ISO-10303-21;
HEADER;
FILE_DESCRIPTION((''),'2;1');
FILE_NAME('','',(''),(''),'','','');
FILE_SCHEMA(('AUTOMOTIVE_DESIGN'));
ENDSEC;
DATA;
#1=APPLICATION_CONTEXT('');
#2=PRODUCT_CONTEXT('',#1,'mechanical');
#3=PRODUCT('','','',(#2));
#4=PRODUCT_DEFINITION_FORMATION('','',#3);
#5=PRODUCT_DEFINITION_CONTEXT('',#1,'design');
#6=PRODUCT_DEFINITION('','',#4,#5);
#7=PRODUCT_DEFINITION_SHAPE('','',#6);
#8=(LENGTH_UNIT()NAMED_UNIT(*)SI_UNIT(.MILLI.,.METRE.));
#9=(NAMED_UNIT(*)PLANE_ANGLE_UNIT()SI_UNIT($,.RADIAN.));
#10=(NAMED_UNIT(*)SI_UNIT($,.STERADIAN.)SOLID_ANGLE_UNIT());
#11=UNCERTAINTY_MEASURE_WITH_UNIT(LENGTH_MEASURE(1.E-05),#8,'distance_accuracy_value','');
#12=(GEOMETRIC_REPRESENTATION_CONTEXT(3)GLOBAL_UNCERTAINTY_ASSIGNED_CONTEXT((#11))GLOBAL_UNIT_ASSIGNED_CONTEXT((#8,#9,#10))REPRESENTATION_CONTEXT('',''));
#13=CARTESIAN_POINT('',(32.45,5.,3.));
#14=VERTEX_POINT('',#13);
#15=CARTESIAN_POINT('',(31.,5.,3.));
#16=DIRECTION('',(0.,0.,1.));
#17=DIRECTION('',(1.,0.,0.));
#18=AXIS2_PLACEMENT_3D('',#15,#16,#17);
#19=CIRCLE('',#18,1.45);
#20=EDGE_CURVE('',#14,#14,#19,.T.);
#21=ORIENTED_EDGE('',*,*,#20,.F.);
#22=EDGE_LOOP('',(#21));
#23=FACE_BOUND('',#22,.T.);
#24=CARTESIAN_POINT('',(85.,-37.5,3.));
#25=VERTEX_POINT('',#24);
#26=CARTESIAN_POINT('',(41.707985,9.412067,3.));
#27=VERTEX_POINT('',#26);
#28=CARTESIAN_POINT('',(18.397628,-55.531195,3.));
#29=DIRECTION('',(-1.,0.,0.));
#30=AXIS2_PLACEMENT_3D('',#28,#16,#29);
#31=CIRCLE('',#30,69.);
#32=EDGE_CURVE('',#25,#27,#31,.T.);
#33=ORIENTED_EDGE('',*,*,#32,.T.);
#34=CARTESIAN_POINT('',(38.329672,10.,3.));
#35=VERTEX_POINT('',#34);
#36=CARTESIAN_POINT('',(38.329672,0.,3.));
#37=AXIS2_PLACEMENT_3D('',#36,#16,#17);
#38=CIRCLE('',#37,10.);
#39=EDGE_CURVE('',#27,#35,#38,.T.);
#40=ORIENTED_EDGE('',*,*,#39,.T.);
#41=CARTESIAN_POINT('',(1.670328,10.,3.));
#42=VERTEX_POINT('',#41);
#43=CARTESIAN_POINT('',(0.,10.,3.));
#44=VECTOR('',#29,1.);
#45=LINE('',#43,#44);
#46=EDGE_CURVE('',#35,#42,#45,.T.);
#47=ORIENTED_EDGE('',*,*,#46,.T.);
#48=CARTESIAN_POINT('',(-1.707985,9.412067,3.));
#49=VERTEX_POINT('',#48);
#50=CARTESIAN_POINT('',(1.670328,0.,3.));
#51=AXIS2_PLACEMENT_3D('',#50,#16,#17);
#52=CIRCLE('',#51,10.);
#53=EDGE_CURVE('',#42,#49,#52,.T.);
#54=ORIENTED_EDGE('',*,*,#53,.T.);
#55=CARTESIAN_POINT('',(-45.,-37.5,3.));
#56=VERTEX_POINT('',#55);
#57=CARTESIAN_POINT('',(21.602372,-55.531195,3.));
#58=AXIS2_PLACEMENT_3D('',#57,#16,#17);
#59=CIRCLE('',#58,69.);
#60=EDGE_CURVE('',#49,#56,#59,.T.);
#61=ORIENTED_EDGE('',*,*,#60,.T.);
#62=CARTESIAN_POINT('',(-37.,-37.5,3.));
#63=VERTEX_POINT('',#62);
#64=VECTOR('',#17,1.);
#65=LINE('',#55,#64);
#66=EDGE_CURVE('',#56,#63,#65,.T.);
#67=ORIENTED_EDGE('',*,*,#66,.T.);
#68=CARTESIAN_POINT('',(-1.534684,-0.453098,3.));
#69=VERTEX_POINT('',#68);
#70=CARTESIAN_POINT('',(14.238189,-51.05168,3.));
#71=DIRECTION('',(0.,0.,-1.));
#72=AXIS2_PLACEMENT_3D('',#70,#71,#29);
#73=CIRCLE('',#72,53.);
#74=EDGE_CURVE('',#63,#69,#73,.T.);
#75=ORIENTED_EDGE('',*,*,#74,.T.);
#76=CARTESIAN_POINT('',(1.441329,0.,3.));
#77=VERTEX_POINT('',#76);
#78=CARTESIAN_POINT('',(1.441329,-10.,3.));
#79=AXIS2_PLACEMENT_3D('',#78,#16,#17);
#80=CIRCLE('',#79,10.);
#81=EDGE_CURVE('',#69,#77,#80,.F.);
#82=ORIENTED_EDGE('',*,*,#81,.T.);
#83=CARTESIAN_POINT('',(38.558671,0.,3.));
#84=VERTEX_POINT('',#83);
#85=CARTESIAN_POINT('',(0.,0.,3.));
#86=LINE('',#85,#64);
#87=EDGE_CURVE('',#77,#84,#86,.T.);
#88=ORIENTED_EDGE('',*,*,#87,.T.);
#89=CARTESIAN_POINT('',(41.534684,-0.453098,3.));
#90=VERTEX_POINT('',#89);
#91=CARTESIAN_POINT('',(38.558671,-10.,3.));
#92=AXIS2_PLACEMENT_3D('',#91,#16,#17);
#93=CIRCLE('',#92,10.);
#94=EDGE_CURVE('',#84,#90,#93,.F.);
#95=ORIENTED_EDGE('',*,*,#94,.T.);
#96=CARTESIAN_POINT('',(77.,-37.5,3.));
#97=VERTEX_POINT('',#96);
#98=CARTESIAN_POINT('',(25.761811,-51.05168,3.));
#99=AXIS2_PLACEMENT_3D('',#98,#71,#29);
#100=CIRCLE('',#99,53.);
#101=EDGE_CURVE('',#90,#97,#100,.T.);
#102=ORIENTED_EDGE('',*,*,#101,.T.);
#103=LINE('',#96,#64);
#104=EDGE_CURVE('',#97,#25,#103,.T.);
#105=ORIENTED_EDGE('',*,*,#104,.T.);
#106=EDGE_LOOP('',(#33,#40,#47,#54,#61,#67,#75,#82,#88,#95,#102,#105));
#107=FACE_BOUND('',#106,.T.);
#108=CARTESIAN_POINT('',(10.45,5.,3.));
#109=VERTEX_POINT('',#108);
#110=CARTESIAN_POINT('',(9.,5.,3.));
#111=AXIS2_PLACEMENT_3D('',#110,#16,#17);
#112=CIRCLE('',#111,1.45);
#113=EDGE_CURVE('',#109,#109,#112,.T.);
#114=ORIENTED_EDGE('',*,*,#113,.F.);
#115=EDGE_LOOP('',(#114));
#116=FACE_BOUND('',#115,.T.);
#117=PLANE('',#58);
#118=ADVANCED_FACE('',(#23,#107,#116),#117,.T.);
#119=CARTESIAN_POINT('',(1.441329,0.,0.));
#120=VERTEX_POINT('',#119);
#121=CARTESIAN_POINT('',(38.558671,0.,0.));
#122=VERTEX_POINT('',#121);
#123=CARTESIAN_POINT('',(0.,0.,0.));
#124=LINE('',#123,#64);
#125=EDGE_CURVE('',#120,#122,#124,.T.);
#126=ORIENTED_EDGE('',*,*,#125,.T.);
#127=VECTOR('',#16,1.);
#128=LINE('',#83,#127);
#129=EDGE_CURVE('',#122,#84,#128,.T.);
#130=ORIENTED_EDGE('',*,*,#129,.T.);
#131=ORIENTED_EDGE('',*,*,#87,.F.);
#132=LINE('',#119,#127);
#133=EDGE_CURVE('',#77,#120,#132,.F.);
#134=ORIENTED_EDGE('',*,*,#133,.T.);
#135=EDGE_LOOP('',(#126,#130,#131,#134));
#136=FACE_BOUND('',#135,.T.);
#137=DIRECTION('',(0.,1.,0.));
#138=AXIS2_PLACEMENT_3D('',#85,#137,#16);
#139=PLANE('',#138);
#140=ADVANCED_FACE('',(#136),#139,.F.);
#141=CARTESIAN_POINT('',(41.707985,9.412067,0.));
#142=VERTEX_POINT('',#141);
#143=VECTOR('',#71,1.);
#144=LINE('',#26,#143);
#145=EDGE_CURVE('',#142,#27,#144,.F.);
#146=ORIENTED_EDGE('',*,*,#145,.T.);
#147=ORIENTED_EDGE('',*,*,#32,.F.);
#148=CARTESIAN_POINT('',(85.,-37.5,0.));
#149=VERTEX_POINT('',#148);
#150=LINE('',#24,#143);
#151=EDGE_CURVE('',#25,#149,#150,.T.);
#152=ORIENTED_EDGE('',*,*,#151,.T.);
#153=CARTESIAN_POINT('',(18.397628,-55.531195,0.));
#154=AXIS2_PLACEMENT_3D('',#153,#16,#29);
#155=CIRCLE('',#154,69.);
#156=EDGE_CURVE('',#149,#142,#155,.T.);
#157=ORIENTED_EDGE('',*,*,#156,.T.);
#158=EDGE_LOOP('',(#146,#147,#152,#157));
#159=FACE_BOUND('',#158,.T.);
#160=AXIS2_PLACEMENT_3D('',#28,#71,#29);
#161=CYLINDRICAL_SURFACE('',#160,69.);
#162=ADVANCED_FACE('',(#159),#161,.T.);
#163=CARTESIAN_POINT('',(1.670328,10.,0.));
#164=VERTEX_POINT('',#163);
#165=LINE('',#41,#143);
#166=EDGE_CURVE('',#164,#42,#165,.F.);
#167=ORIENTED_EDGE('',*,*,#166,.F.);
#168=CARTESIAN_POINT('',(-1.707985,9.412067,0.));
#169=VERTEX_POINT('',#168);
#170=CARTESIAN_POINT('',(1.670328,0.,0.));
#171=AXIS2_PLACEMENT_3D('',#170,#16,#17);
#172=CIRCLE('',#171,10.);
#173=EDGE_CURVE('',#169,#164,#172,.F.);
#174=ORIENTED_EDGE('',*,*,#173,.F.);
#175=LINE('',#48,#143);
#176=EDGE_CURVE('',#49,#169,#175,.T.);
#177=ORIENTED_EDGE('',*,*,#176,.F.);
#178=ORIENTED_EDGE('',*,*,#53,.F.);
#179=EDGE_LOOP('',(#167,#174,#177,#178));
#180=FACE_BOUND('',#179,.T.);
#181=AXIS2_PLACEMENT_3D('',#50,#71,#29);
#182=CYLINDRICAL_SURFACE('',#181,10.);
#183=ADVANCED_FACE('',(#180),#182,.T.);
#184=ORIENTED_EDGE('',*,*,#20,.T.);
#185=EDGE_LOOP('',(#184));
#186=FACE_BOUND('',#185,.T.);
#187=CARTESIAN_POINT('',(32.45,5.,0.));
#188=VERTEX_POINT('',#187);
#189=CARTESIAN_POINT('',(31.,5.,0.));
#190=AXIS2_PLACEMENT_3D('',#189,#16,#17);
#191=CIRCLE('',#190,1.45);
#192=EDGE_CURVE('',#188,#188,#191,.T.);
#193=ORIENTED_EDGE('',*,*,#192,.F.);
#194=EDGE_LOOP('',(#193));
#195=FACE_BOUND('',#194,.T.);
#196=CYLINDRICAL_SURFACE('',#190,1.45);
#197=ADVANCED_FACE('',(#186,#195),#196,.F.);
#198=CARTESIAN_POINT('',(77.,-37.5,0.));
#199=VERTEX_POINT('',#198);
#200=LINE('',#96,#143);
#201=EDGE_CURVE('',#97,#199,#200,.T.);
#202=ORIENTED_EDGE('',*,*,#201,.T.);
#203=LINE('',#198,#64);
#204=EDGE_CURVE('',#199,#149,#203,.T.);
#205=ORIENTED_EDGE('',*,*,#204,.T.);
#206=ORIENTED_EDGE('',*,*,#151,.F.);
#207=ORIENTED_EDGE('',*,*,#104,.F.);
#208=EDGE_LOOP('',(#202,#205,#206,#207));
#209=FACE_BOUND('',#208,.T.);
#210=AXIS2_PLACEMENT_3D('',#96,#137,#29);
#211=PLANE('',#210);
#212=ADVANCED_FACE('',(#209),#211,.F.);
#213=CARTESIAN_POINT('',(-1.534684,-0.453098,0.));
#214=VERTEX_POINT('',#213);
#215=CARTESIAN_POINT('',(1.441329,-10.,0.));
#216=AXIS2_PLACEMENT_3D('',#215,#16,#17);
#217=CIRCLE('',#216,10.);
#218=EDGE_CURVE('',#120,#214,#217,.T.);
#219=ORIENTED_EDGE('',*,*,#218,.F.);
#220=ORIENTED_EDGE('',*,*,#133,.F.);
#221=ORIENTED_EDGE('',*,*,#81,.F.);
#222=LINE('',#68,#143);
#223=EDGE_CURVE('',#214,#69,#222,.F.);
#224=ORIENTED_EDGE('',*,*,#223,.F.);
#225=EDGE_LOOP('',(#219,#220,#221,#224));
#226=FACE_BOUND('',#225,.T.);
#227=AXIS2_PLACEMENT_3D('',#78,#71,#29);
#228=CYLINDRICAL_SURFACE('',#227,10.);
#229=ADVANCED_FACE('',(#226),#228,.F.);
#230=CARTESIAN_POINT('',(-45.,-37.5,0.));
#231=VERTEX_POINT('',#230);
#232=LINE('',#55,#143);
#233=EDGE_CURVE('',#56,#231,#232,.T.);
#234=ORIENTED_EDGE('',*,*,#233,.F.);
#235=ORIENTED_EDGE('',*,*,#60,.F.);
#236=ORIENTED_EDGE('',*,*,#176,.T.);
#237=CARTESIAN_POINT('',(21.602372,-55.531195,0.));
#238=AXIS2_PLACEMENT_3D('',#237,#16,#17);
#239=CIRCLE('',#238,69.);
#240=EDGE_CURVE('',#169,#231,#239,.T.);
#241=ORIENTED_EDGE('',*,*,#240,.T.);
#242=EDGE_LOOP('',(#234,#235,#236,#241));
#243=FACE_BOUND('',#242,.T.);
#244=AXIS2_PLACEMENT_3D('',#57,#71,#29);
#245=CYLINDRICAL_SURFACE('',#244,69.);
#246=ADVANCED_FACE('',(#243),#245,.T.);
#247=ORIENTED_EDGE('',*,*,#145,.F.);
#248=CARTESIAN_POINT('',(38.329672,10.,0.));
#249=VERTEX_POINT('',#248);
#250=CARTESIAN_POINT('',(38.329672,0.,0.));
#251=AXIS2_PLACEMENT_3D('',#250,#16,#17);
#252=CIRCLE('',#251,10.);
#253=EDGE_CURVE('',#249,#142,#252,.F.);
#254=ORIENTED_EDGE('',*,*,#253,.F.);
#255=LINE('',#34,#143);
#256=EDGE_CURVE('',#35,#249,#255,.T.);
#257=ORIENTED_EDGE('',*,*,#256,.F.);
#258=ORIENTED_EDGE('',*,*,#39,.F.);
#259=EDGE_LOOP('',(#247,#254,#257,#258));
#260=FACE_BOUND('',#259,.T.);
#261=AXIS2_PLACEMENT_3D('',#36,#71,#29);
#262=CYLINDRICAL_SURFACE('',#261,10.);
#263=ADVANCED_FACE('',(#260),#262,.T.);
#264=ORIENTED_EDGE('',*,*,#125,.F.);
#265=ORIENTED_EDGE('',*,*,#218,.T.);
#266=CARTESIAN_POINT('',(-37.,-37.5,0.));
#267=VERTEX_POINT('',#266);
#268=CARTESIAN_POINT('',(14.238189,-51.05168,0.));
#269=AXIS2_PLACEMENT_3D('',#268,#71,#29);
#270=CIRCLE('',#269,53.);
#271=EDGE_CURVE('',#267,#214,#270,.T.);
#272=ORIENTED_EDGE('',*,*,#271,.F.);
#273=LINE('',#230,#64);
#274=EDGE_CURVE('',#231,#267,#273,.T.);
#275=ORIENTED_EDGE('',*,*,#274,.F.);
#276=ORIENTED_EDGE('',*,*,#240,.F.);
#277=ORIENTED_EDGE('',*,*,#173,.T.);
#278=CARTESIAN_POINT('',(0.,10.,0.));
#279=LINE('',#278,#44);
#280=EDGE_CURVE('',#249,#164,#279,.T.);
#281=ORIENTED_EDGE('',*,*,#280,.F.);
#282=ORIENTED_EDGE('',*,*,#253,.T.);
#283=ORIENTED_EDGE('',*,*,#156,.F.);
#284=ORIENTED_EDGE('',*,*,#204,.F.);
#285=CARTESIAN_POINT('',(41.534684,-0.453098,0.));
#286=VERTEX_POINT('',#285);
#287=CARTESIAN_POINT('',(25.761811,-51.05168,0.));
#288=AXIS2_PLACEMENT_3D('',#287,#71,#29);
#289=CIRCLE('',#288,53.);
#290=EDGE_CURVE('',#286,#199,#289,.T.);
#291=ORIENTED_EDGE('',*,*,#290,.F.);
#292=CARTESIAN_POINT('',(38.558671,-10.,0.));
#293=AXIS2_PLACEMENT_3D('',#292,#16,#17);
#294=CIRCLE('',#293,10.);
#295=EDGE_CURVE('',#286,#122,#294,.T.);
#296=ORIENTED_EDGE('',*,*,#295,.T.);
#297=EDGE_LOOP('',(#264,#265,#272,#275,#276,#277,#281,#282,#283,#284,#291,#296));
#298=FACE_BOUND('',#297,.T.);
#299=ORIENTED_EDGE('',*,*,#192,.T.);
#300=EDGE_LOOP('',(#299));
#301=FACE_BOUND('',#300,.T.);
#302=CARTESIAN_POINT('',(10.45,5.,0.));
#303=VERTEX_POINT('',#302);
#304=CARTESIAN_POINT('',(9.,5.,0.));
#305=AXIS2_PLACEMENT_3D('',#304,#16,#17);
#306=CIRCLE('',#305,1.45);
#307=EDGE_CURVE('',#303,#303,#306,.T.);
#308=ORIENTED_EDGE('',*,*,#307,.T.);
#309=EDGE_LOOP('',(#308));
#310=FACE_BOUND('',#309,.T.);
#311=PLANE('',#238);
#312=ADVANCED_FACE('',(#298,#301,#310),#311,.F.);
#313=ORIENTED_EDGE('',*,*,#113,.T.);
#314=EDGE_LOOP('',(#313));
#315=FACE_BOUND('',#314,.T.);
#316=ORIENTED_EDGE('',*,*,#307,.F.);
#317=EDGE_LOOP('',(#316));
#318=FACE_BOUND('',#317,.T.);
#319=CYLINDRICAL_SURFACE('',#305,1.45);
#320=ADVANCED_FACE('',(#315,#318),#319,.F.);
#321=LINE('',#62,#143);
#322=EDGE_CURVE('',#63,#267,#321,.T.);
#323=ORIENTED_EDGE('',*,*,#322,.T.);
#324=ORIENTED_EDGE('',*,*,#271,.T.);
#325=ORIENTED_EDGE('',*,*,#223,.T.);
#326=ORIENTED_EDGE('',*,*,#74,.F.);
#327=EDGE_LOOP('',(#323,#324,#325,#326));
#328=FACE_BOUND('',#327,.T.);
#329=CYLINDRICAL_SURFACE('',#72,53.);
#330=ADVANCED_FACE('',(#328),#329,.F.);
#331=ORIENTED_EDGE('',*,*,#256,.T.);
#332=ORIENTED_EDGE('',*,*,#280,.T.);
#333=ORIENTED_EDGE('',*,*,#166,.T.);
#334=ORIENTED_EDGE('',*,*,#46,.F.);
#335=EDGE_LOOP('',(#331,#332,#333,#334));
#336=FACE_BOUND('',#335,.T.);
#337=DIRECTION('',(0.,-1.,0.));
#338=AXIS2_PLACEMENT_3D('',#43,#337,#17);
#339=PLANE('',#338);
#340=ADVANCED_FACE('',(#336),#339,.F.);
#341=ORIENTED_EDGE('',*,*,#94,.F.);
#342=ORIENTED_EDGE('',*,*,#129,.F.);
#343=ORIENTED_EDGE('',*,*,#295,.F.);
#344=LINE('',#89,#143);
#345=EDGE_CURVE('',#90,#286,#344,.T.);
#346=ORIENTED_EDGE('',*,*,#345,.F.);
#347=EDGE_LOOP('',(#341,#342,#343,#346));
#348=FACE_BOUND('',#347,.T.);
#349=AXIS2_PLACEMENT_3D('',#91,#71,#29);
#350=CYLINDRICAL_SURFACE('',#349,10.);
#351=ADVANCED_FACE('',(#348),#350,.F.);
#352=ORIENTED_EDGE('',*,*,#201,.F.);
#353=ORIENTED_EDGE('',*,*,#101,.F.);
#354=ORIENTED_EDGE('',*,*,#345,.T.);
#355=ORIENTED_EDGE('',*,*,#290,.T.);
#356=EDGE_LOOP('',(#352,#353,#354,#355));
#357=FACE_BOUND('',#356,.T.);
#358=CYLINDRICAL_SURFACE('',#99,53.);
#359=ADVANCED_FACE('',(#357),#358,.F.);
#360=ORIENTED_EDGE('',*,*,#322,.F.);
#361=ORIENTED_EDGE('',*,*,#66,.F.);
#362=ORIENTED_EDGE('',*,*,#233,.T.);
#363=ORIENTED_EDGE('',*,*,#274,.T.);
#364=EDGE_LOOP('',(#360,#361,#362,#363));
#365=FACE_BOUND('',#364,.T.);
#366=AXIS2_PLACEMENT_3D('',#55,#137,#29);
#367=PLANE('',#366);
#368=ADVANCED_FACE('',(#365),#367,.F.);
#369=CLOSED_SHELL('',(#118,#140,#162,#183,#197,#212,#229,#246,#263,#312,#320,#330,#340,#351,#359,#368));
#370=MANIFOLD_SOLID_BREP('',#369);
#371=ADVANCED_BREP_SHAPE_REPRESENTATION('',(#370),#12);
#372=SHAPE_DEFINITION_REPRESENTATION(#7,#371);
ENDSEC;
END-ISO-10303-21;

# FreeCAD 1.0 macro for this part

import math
import FreeCAD as App
import Part
import Sketcher
from FreeCAD import Vector
Q = App.Units.Quantity


def edges_at(feature, points):
    """Names of the edges that pass closest to the given points."""
    edges = feature.Shape.Edges
    near = lambda p: min(range(len(edges)), key=lambda i: edges[i].distToShape(Part.Vertex(*p))[0])
    return sorted({f"Edge{near(p) + 1}" for p in points})

doc = App.newDocument("Part")
body = doc.addObject("PartDesign::Body", "Body")

# Sketch on XY plane
sketch1 = body.newObject("Sketcher::SketchObject", "Sketch")
sketch1.AttachmentSupport = (doc.getObject("XY_Plane"), [""])
sketch1.MapMode = "FlatFace"
sketch1.addGeometry([
    Part.LineSegment(Vector(-45, -38, 0), Vector(-37, -38, 0)),  # 0
    Part.ArcOfCircle(Part.Circle(Vector(14, -51, 0), Vector(0, 0, 1), 53), math.radians(106), math.radians(165)),  # 1
    Part.LineSegment(Vector(0, 0, 0), Vector(40, 0, 0)),  # 2
    Part.ArcOfCircle(Part.Circle(Vector(26, -51, 0), Vector(0, 0, 1), 53), math.radians(15), math.radians(74)),  # 3
    Part.LineSegment(Vector(77, -38, 0), Vector(85, -38, 0)),  # 4
    Part.ArcOfCircle(Part.Circle(Vector(18, -56, 0), Vector(0, 0, 1), 69), math.radians(15), math.radians(72)),  # 5
    Part.LineSegment(Vector(40, 10, 0), Vector(0, 10, 0)),  # 6
    Part.ArcOfCircle(Part.Circle(Vector(22, -56, 0), Vector(0, 0, 1), 69), math.radians(108), math.radians(165)),  # 7
], False)
sketch1.addConstraint([
    Sketcher.Constraint("Coincident", 0, 2, 1, 2),
    Sketcher.Constraint("Coincident", 1, 1, 2, 1),
    Sketcher.Constraint("Coincident", 2, 2, 3, 2),
    Sketcher.Constraint("Coincident", 3, 1, 4, 1),
    Sketcher.Constraint("Coincident", 4, 2, 5, 1),
    Sketcher.Constraint("Coincident", 5, 2, 6, 1),
    Sketcher.Constraint("Coincident", 6, 2, 7, 1),
    Sketcher.Constraint("Coincident", 7, 2, 0, 1),
    Sketcher.Constraint("Horizontal", 0),
    Sketcher.Constraint("Horizontal", 2),
    Sketcher.Constraint("Horizontal", 4),
    Sketcher.Constraint("Horizontal", 6),
    Sketcher.Constraint("Coincident", 1, 1, -1, 1),
    Sketcher.Constraint("Equal", 1, 3),
    Sketcher.Constraint("Equal", 5, 7),
    Sketcher.Constraint("PointOnObject", 6, 2, -2),
    Sketcher.Constraint("Horizontal", 1, 3, 3, 3),
    Sketcher.Constraint("Horizontal", 5, 3, 7, 3),
    Sketcher.Constraint("Horizontal", 0, 2, 3, 1),
    Sketcher.Constraint("Vertical", 2, 2, 5, 2),
    Sketcher.Constraint("Radius", 1, Q("53 mm")),
    Sketcher.Constraint("Radius", 5, Q("69 mm")),
    Sketcher.Constraint("DistanceX", 0, 1, 0, 2, Q("8 mm")),
    Sketcher.Constraint("DistanceX", 2, 1, 2, 2, Q("40 mm")),
    Sketcher.Constraint("DistanceX", 0, 2, -1, 1, Q("37 mm")),
    Sketcher.Constraint("DistanceY", -1, 1, 5, 2, Q("10 mm")),
    Sketcher.Constraint("DistanceY", 0, 2, -1, 1, Q("37.5 mm")),
])
pad1 = body.newObject("PartDesign::Pad", "Pad")
pad1.Profile = sketch1
pad1.Length = 3

# Sketch on XY plane
sketch2 = body.newObject("Sketcher::SketchObject", "Sketch001")
sketch2.AttachmentSupport = (doc.getObject("XY_Plane"), [""])
sketch2.MapMode = "FlatFace"
sketch2.AttachmentOffset = App.Placement(Vector(0, 0, 3), App.Rotation())
sketch2.addGeometry([
    Part.Circle(Vector(9, 5, 0), Vector(0, 0, 1), 1.4),
    Part.Circle(Vector(31, 5, 0), Vector(0, 0, 1), 1.4),
], False)
sketch2.addConstraint([
    Sketcher.Constraint("Equal", 0, 1),
    Sketcher.Constraint("Horizontal", 0, 3, 1, 3),
    Sketcher.Constraint("Diameter", 0, Q("2.9 mm")),
    Sketcher.Constraint("DistanceX", -1, 1, 0, 3, Q("9 mm")),
    Sketcher.Constraint("DistanceY", -1, 1, 0, 3, Q("5 mm")),
    Sketcher.Constraint("DistanceX", -1, 1, 1, 3, Q("31 mm")),
])
pocket1 = body.newObject("PartDesign::Pocket", "Pocket")
pocket1.Profile = sketch2
pocket1.Type = "ThroughAll"
doc.recompute()

fillet = body.newObject("PartDesign::Fillet", "Fillet")
fillet.Base = (pocket1, edges_at(pocket1, [
    (0, 10, 1.5),
    (40, 10, 1.5),
    (40, 0, 1.5),
    (0, 0, 1.5),
]))
fillet.Radius = 10

doc.recompute()
